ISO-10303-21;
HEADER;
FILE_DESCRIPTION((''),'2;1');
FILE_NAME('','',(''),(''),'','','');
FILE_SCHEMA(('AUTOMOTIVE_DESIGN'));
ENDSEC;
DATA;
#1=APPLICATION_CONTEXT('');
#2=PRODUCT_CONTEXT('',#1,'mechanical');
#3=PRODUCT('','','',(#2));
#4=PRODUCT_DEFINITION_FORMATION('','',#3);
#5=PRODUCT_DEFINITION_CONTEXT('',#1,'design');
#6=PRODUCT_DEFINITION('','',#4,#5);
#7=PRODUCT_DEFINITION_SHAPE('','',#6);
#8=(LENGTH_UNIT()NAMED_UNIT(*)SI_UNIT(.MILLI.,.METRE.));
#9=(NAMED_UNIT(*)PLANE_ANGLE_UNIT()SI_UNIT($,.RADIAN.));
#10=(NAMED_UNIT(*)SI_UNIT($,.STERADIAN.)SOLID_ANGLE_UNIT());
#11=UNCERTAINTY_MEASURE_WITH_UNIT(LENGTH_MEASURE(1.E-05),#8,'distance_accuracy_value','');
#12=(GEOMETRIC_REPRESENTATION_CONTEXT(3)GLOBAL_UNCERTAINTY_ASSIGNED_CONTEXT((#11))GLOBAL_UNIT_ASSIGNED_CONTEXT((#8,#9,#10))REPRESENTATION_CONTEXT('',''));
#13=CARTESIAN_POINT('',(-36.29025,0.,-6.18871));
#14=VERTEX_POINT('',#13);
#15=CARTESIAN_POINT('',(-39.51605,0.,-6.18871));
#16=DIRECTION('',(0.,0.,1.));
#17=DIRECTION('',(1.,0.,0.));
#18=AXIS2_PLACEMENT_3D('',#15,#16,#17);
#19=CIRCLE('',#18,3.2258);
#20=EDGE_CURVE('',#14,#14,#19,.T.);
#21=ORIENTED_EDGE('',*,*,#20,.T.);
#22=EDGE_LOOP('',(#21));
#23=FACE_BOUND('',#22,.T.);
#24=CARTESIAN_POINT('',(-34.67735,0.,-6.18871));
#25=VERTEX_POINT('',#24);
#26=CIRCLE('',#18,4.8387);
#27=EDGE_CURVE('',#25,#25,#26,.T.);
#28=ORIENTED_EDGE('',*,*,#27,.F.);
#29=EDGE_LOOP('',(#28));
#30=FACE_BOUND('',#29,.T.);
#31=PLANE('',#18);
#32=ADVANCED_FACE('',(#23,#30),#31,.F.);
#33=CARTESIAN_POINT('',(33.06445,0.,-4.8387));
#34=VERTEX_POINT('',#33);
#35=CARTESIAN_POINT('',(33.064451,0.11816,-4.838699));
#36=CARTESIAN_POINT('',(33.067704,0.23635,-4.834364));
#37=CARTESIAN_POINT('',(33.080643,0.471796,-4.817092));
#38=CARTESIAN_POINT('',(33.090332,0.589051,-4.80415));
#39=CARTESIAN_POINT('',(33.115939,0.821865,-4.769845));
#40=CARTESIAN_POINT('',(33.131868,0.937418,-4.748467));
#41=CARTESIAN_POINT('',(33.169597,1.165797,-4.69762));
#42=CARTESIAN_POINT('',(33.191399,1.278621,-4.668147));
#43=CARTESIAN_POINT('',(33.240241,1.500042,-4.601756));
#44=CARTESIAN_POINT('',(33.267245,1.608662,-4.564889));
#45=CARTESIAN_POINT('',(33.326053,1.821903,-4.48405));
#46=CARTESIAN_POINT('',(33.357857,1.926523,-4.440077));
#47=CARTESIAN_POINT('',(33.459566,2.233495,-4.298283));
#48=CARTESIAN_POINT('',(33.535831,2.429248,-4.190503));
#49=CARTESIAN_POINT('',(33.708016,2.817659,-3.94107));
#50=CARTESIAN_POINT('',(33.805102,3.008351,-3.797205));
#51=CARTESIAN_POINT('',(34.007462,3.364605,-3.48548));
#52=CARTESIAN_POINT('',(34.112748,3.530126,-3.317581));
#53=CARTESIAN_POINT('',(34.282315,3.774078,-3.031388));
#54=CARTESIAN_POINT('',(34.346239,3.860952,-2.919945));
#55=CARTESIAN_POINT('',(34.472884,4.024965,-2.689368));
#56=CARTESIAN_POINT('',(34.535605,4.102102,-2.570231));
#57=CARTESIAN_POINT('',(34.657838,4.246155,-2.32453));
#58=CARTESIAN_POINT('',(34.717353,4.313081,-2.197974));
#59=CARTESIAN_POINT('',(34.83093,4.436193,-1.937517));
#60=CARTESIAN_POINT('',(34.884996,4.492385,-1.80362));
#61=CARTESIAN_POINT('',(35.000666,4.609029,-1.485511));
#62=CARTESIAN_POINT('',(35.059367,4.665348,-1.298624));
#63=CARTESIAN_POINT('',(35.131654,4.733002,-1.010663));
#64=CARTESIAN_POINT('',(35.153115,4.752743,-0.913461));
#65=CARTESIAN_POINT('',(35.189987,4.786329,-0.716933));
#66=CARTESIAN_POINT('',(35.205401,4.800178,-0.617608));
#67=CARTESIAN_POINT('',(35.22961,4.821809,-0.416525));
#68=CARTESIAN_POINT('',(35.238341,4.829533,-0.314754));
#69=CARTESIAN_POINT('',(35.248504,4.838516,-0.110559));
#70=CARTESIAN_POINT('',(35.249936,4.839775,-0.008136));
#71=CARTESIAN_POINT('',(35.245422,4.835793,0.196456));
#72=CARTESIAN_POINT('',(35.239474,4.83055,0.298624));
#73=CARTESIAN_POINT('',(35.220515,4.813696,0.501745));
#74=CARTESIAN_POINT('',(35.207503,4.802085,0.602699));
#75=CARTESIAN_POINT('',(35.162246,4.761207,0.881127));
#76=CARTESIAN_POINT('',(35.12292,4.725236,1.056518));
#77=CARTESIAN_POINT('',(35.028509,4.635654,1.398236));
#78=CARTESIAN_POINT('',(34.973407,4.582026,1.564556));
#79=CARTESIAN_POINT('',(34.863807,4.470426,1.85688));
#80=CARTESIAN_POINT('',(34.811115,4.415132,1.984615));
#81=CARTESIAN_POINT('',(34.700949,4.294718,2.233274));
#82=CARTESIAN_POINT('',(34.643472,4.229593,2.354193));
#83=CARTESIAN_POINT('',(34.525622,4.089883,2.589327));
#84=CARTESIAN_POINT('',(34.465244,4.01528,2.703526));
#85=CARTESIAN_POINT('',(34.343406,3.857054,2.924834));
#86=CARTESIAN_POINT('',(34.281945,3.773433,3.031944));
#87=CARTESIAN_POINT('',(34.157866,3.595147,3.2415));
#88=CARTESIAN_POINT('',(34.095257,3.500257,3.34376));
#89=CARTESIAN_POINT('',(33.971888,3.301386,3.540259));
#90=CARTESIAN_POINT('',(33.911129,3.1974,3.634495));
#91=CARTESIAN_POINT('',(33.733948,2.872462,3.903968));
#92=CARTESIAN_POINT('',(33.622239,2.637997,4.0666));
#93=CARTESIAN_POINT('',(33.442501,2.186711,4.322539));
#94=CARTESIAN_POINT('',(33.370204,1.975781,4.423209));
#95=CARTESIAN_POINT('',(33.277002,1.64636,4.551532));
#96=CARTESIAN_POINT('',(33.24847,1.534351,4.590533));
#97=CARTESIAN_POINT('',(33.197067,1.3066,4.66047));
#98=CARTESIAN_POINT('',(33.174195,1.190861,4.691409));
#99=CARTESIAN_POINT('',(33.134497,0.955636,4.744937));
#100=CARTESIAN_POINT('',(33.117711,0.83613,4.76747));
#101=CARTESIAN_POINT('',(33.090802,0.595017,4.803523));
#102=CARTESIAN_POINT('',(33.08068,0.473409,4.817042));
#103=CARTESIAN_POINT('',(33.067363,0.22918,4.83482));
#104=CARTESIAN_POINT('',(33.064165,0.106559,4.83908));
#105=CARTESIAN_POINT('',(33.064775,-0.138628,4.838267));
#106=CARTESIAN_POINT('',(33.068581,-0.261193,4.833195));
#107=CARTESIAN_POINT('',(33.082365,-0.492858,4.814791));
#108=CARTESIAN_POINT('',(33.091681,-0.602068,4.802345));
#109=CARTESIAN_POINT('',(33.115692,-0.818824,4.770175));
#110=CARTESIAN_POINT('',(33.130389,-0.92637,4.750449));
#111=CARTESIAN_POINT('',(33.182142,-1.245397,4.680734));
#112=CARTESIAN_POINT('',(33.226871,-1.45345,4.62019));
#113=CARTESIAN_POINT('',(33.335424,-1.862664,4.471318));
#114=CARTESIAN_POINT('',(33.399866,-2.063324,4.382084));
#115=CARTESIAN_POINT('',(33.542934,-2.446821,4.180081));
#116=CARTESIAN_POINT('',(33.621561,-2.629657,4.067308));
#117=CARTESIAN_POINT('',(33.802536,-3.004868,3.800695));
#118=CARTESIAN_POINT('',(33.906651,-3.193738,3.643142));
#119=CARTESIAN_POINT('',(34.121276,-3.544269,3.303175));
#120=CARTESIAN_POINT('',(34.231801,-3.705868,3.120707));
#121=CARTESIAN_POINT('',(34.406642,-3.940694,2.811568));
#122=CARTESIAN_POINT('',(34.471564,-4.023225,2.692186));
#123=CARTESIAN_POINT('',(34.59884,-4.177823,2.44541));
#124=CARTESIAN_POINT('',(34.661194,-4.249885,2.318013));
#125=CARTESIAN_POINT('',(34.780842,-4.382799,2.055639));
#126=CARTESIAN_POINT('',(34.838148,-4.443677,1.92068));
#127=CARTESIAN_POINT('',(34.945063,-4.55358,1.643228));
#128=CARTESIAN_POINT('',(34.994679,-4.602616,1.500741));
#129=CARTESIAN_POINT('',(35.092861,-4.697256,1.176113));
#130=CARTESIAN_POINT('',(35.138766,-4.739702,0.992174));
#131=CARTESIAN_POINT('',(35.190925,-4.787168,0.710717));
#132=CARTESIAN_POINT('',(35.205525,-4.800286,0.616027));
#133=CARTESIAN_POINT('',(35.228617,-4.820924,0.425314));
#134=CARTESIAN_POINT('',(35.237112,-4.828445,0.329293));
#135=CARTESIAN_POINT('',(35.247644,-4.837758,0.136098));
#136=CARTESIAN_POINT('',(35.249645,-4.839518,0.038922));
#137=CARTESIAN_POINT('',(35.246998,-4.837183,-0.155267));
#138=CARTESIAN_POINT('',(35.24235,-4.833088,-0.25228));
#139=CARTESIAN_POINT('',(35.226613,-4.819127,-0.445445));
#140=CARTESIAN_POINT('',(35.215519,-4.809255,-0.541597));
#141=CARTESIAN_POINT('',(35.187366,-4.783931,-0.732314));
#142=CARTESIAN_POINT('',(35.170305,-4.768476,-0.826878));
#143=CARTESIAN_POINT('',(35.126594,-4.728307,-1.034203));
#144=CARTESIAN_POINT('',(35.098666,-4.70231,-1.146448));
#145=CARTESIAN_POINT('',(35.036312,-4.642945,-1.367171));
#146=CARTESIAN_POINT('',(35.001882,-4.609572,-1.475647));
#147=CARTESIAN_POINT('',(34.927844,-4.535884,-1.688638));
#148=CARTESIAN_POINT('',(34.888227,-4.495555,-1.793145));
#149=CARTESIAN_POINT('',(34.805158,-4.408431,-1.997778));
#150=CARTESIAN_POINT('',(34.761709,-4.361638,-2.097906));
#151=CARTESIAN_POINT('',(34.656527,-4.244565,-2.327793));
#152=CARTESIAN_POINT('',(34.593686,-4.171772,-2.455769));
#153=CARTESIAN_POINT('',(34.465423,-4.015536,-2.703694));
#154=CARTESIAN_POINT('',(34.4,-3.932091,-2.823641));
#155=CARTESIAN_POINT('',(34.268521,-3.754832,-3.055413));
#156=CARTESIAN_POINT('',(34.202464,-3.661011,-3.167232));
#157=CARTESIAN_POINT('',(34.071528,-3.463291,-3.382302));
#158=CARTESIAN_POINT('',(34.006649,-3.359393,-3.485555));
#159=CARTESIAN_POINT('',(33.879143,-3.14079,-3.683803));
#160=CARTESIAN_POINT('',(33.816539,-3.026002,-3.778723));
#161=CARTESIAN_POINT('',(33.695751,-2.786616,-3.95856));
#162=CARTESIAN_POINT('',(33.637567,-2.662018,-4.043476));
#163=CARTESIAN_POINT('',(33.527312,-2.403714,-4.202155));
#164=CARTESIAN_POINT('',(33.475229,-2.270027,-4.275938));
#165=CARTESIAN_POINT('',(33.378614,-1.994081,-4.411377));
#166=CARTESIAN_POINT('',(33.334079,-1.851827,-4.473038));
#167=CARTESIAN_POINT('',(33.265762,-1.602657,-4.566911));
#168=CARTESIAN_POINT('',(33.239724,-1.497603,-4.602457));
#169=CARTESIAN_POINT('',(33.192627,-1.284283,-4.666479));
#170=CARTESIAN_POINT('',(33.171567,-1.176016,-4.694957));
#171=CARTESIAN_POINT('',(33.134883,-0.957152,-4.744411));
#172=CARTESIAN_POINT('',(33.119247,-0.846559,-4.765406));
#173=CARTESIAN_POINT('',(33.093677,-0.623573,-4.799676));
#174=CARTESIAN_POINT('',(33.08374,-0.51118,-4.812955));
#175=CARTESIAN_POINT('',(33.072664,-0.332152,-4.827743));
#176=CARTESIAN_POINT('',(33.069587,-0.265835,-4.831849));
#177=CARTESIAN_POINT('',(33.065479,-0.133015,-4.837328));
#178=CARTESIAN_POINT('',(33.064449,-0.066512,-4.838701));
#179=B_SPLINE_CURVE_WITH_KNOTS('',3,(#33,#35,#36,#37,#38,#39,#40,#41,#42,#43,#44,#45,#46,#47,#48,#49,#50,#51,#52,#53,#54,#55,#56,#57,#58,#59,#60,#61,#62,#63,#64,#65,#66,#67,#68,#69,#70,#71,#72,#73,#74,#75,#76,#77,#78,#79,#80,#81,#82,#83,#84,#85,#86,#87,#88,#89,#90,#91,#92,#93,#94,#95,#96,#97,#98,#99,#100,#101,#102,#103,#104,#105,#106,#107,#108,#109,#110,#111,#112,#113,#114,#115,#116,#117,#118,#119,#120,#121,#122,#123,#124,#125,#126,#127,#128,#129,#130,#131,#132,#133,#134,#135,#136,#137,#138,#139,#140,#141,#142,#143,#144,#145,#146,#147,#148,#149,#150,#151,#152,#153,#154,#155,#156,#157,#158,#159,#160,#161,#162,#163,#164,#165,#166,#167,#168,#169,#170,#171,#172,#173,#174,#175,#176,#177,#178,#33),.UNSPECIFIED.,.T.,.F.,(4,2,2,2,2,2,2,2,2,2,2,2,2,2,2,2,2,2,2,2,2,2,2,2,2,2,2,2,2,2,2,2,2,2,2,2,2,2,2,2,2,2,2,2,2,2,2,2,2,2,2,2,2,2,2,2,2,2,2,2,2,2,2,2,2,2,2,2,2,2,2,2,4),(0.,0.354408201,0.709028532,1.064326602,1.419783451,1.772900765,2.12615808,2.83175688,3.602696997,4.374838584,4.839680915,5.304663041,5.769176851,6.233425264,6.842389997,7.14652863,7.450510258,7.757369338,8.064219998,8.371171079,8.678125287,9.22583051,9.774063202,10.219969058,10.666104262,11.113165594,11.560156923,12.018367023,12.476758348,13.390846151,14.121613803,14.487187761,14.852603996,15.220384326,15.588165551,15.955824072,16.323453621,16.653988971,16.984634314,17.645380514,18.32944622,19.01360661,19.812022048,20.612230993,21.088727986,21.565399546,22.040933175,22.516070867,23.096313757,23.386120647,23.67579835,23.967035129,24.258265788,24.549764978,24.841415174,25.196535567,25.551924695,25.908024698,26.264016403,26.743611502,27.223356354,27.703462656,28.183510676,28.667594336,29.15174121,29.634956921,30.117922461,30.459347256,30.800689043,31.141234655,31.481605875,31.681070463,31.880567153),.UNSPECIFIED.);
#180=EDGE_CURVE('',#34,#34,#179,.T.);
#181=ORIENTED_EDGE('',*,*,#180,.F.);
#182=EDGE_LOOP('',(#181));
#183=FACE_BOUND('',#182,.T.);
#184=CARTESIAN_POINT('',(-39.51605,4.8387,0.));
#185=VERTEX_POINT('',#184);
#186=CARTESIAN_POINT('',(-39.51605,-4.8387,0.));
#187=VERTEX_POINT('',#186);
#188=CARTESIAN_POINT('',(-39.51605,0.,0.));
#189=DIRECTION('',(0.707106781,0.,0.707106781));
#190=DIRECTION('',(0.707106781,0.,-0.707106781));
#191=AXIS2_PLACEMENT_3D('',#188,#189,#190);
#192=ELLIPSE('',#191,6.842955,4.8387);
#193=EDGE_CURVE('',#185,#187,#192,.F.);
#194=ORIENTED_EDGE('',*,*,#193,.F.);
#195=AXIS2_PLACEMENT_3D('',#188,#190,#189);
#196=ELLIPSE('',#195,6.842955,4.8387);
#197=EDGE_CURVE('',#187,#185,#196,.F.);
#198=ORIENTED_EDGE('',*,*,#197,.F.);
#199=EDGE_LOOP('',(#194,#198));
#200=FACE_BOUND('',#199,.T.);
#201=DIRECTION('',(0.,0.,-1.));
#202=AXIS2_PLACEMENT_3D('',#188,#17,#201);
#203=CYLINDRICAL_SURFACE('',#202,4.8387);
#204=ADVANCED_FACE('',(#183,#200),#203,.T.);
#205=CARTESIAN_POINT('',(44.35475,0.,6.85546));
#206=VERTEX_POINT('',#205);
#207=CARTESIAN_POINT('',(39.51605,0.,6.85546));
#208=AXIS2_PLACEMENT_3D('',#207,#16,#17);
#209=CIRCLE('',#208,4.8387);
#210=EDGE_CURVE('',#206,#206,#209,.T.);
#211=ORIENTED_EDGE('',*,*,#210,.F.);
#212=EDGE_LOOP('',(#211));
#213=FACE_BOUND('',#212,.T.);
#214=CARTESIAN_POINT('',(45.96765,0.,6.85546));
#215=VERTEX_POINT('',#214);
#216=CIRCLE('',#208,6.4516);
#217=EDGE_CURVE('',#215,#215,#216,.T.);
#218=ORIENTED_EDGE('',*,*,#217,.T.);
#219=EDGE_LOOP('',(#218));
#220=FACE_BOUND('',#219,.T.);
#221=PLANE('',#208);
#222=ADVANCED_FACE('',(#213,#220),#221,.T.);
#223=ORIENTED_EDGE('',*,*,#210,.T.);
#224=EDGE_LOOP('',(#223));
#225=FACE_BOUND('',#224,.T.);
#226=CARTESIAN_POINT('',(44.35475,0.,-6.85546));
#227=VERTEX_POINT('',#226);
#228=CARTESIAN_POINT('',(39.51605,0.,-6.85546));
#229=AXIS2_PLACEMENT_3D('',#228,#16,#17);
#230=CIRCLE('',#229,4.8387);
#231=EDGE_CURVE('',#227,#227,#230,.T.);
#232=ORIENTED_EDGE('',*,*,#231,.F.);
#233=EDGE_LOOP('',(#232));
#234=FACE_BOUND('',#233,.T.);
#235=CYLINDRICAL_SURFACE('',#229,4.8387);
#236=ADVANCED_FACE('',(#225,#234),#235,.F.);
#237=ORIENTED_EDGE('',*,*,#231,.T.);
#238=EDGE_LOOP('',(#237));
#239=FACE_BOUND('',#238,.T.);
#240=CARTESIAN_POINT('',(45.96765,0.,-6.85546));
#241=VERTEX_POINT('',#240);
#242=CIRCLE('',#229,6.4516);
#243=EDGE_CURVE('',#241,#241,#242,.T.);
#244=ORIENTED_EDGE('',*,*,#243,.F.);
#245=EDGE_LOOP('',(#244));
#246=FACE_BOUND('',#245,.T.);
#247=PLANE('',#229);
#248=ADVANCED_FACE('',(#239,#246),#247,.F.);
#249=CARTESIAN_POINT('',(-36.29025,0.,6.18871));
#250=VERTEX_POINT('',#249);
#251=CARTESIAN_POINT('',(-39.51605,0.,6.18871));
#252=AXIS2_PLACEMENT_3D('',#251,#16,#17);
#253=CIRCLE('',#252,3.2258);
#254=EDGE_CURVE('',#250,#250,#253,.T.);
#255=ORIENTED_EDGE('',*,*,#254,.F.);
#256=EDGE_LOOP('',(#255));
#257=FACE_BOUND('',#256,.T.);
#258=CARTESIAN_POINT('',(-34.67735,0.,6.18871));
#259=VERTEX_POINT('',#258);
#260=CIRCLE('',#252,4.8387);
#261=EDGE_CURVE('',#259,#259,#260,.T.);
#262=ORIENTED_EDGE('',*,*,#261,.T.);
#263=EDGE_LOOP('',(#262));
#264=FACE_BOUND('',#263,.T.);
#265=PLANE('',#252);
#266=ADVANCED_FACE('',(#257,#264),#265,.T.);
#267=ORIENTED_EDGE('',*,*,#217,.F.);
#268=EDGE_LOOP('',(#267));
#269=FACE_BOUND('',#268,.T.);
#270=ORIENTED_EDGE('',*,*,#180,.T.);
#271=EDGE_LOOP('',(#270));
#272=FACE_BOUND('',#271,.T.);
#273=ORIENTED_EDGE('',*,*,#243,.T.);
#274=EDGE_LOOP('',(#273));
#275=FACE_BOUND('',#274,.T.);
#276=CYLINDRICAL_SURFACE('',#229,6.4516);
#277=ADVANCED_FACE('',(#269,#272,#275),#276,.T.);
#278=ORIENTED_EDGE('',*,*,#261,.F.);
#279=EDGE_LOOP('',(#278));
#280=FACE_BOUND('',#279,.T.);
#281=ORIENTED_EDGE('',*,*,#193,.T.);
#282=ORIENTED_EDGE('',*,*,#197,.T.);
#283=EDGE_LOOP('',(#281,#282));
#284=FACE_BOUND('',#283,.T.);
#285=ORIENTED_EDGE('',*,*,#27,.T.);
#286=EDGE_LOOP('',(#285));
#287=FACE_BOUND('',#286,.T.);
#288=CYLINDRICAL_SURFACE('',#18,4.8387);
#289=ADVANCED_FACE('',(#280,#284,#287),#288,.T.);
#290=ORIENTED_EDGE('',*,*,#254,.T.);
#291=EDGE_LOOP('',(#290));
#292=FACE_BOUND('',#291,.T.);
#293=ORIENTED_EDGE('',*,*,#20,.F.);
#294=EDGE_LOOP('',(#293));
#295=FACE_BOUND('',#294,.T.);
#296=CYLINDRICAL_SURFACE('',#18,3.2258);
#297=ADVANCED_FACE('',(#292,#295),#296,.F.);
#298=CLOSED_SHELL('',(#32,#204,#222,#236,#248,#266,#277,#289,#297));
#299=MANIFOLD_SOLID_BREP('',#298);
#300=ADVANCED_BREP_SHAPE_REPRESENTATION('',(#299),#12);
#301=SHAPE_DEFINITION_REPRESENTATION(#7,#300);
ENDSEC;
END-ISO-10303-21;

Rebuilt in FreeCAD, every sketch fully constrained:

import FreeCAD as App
import Part
import Sketcher
from FreeCAD import Vector
Q = App.Units.Quantity

doc = App.newDocument("Part")
body = doc.addObject("PartDesign::Body", "Body")

# Sketch on YZ plane
sketch1 = doc.addObject("Sketcher::SketchObject", "Sketch")
body.addObject(sketch1)
sketch1.AttachmentSupport = (doc.YZ_Plane, [""])
sketch1.MapMode = "FlatFace"
sketch1.addGeometry(Part.Circle(Vector(0, 0, 0), Vector(0, 0, 1), 4.8387), False)
sketch1.addConstraint(Sketcher.Constraint("Coincident", 0, 3, -1, 1))
sketch1.addConstraint(Sketcher.Constraint("Diameter", 0, Q("0.381 in")))
pad1 = doc.addObject("PartDesign::Pad", "Pad")
body.addObject(pad1)
pad1.Profile = sketch1
pad1.Type = "TwoLengths"
pad1.Length = 39.51605
pad1.Length2 = 39.51605

# Sketch on XY plane
sketch2 = doc.addObject("Sketcher::SketchObject", "Sketch001")
body.addObject(sketch2)
sketch2.AttachmentSupport = (doc.XY_Plane, [""])
sketch2.MapMode = "FlatFace"
sketch2.addGeometry(Part.Circle(Vector(-39.51605, 0, 0), Vector(0, 0, 1), 4.8387), False)
sketch2.addConstraint(Sketcher.Constraint("PointOnObject", 0, 3, -1))
sketch2.addConstraint(Sketcher.Constraint("Diameter", 0, Q("0.381 in")))
sketch2.addConstraint(Sketcher.Constraint("DistanceX", 0, 3, -1, 1, Q("39.51605 mm")))
pad2 = doc.addObject("PartDesign::Pad", "Pad001")
body.addObject(pad2)
pad2.Profile = sketch2
pad2.Type = "TwoLengths"
pad2.Length = 6.18871
pad2.Length2 = 6.18871

# Sketch on XY plane
sketch3 = doc.addObject("Sketcher::SketchObject", "Sketch002")
body.addObject(sketch3)
sketch3.AttachmentSupport = (doc.XY_Plane, [""])
sketch3.MapMode = "FlatFace"
sketch3.AttachmentOffset = App.Placement(Vector(0, 0, 6.18871), App.Rotation())
sketch3.addGeometry(Part.Circle(Vector(-39.51605, 0, 0), Vector(0, 0, 1), 3.2258), False)
sketch3.addConstraint(Sketcher.Constraint("PointOnObject", 0, 3, -1))
sketch3.addConstraint(Sketcher.Constraint("Diameter", 0, Q("0.254 in")))
sketch3.addConstraint(Sketcher.Constraint("DistanceX", 0, 3, -1, 1, Q("39.51605 mm")))
pocket1 = doc.addObject("PartDesign::Pocket", "Pocket")
body.addObject(pocket1)
pocket1.Profile = sketch3
pocket1.Type = "ThroughAll"

# Sketch on XY plane
sketch4 = doc.addObject("Sketcher::SketchObject", "Sketch003")
body.addObject(sketch4)
sketch4.AttachmentSupport = (doc.XY_Plane, [""])
sketch4.MapMode = "FlatFace"
sketch4.addGeometry(Part.Circle(Vector(39.51605, 0, 0), Vector(0, 0, 1), 6.4516), False)
sketch4.addConstraint(Sketcher.Constraint("PointOnObject", 0, 3, -1))
sketch4.addConstraint(Sketcher.Constraint("Diameter", 0, Q("0.508 in")))
sketch4.addConstraint(Sketcher.Constraint("DistanceX", -1, 1, 0, 3, Q("39.51605 mm")))
pad3 = doc.addObject("PartDesign::Pad", "Pad002")
body.addObject(pad3)
pad3.Profile = sketch4
pad3.Type = "TwoLengths"
pad3.Length = Q("0.2699 in")
pad3.Length2 = Q("0.2699 in")

# Sketch on XY plane
sketch5 = doc.addObject("Sketcher::SketchObject", "Sketch004")
body.addObject(sketch5)
sketch5.AttachmentSupport = (doc.XY_Plane, [""])
sketch5.MapMode = "FlatFace"
sketch5.AttachmentOffset = App.Placement(Vector(0, 0, 0.2699 * 25.4), App.Rotation())
sketch5.addGeometry(Part.Circle(Vector(39.51605, 0, 0), Vector(0, 0, 1), 4.8387), False)
sketch5.addConstraint(Sketcher.Constraint("PointOnObject", 0, 3, -1))
sketch5.addConstraint(Sketcher.Constraint("Diameter", 0, Q("0.381 in")))
sketch5.addConstraint(Sketcher.Constraint("DistanceX", -1, 1, 0, 3, Q("39.51605 mm")))
pocket2 = doc.addObject("PartDesign::Pocket", "Pocket001")
body.addObject(pocket2)
pocket2.Profile = sketch5
pocket2.Type = "ThroughAll"

doc.recompute()
